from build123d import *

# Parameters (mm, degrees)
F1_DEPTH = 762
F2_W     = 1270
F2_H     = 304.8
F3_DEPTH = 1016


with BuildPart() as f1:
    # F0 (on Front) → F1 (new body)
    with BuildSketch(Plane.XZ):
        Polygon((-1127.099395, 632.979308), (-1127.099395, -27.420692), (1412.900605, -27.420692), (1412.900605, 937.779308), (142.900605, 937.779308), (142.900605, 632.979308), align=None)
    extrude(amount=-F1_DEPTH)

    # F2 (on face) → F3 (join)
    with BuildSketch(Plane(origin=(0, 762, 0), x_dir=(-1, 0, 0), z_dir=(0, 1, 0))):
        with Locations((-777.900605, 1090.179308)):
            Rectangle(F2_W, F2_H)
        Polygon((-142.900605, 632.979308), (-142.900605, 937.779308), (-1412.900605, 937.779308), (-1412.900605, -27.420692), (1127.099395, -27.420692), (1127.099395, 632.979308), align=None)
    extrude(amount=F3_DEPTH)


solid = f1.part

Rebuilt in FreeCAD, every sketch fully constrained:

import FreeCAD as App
import Part
import Sketcher

V = App.Vector
Q = App.Units.Quantity

doc = App.newDocument("Part")
body = doc.addObject("PartDesign::Body", "Body")

# Sketch on XZ plane
sketch1 = body.newObject("Sketcher::SketchObject", "Sketch")
sketch1.AttachmentSupport = (doc.getObject("XZ_Plane"), [""])
sketch1.MapMode = "FlatFace"
sketch1.addGeometry(Part.LineSegment(V(-1127, 633, 0), V(-1127, -27, 0)), False)
sketch1.addGeometry(Part.LineSegment(V(-1127, -27, 0), V(1413, -27, 0)), False)
sketch1.addGeometry(Part.LineSegment(V(1413, -27, 0), V(1413, 938, 0)), False)
sketch1.addGeometry(Part.LineSegment(V(1413, 938, 0), V(143, 938, 0)), False)
sketch1.addGeometry(Part.LineSegment(V(143, 938, 0), V(143, 633, 0)), False)
sketch1.addGeometry(Part.LineSegment(V(143, 633, 0), V(-1127, 633, 0)), False)
sketch1.addConstraint(Sketcher.Constraint("Coincident", 0, 2, 1, 1))
sketch1.addConstraint(Sketcher.Constraint("Coincident", 1, 2, 2, 1))
sketch1.addConstraint(Sketcher.Constraint("Coincident", 2, 2, 3, 1))
sketch1.addConstraint(Sketcher.Constraint("Coincident", 3, 2, 4, 1))
sketch1.addConstraint(Sketcher.Constraint("Coincident", 4, 2, 5, 1))
sketch1.addConstraint(Sketcher.Constraint("Coincident", 5, 2, 0, 1))
sketch1.addConstraint(Sketcher.Constraint("Vertical", 0))
sketch1.addConstraint(Sketcher.Constraint("Horizontal", 1))
sketch1.addConstraint(Sketcher.Constraint("Vertical", 2))
sketch1.addConstraint(Sketcher.Constraint("Horizontal", 3))
sketch1.addConstraint(Sketcher.Constraint("Vertical", 4))
sketch1.addConstraint(Sketcher.Constraint("Horizontal", 5))
sketch1.addConstraint(Sketcher.Constraint("Equal", 3, 5))
sketch1.addConstraint(Sketcher.Constraint("DistanceX", 1, 1, 1, 2, Q("100 in")))
sketch1.addConstraint(Sketcher.Constraint("DistanceY", 0, 2, 0, 1, Q("26 in")))
sketch1.addConstraint(Sketcher.Constraint("DistanceY", 2, 1, 2, 2, Q("38 in")))
sketch1.addConstraint(Sketcher.Constraint("DistanceY", 0, 2, -1, 1, Q("27.420692 mm")))
sketch1.addConstraint(Sketcher.Constraint("DistanceX", 0, 2, -1, 1, Q("1127.099395 mm")))
pad1 = body.newObject("PartDesign::Pad", "Pad")
pad1.Profile = sketch1
pad1.Length = Q("30 in")
pad1.Reversed = True

# Sketch on XZ plane
sketch2 = body.newObject("Sketcher::SketchObject", "Sketch001")
sketch2.AttachmentSupport = (doc.getObject("XZ_Plane"), [""])
sketch2.MapMode = "FlatFace"
sketch2.AttachmentOffset = App.Placement(V(0, 0, -30 * 25.4), App.Rotation())
sketch2.addGeometry(Part.LineSegment(V(1413, 1243, 0), V(1413, -27, 0)), False)
sketch2.addGeometry(Part.LineSegment(V(1413, -27, 0), V(-1127, -27, 0)), False)
sketch2.addGeometry(Part.LineSegment(V(-1127, -27, 0), V(-1127, 633, 0)), False)
sketch2.addGeometry(Part.LineSegment(V(-1127, 633, 0), V(143, 633, 0)), False)
sketch2.addGeometry(Part.LineSegment(V(143, 633, 0), V(143, 1243, 0)), False)
sketch2.addGeometry(Part.LineSegment(V(143, 1243, 0), V(1413, 1243, 0)), False)
sketch2.addConstraint(Sketcher.Constraint("Coincident", 0, 2, 1, 1))
sketch2.addConstraint(Sketcher.Constraint("Coincident", 1, 2, 2, 1))
sketch2.addConstraint(Sketcher.Constraint("Coincident", 2, 2, 3, 1))
sketch2.addConstraint(Sketcher.Constraint("Coincident", 3, 2, 4, 1))
sketch2.addConstraint(Sketcher.Constraint("Coincident", 4, 2, 5, 1))
sketch2.addConstraint(Sketcher.Constraint("Coincident", 5, 2, 0, 1))
sketch2.addConstraint(Sketcher.Constraint("Vertical", 0))
sketch2.addConstraint(Sketcher.Constraint("Horizontal", 1))
sketch2.addConstraint(Sketcher.Constraint("Vertical", 2))
sketch2.addConstraint(Sketcher.Constraint("Horizontal", 3))
sketch2.addConstraint(Sketcher.Constraint("Vertical", 4))
sketch2.addConstraint(Sketcher.Constraint("Horizontal", 5))
sketch2.addConstraint(Sketcher.Constraint("Equal", 3, 5))
sketch2.addConstraint(Sketcher.Constraint("Equal", 5, 0))
sketch2.addConstraint(Sketcher.Constraint("DistanceX", 1, 2, 1, 1, Q("100 in")))
sketch2.addConstraint(Sketcher.Constraint("DistanceY", 2, 1, 2, 2, Q("26 in")))
sketch2.addConstraint(Sketcher.Constraint("DistanceY", 0, 2, -1, 1, Q("27.420692 mm")))
sketch2.addConstraint(Sketcher.Constraint("DistanceX", -1, 1, 0, 2, Q("1412.900605 mm")))
pad2 = body.newObject("PartDesign::Pad", "Pad001")
pad2.Profile = sketch2
pad2.Length = Q("40 in")
pad2.Reversed = True

doc.recompute()
